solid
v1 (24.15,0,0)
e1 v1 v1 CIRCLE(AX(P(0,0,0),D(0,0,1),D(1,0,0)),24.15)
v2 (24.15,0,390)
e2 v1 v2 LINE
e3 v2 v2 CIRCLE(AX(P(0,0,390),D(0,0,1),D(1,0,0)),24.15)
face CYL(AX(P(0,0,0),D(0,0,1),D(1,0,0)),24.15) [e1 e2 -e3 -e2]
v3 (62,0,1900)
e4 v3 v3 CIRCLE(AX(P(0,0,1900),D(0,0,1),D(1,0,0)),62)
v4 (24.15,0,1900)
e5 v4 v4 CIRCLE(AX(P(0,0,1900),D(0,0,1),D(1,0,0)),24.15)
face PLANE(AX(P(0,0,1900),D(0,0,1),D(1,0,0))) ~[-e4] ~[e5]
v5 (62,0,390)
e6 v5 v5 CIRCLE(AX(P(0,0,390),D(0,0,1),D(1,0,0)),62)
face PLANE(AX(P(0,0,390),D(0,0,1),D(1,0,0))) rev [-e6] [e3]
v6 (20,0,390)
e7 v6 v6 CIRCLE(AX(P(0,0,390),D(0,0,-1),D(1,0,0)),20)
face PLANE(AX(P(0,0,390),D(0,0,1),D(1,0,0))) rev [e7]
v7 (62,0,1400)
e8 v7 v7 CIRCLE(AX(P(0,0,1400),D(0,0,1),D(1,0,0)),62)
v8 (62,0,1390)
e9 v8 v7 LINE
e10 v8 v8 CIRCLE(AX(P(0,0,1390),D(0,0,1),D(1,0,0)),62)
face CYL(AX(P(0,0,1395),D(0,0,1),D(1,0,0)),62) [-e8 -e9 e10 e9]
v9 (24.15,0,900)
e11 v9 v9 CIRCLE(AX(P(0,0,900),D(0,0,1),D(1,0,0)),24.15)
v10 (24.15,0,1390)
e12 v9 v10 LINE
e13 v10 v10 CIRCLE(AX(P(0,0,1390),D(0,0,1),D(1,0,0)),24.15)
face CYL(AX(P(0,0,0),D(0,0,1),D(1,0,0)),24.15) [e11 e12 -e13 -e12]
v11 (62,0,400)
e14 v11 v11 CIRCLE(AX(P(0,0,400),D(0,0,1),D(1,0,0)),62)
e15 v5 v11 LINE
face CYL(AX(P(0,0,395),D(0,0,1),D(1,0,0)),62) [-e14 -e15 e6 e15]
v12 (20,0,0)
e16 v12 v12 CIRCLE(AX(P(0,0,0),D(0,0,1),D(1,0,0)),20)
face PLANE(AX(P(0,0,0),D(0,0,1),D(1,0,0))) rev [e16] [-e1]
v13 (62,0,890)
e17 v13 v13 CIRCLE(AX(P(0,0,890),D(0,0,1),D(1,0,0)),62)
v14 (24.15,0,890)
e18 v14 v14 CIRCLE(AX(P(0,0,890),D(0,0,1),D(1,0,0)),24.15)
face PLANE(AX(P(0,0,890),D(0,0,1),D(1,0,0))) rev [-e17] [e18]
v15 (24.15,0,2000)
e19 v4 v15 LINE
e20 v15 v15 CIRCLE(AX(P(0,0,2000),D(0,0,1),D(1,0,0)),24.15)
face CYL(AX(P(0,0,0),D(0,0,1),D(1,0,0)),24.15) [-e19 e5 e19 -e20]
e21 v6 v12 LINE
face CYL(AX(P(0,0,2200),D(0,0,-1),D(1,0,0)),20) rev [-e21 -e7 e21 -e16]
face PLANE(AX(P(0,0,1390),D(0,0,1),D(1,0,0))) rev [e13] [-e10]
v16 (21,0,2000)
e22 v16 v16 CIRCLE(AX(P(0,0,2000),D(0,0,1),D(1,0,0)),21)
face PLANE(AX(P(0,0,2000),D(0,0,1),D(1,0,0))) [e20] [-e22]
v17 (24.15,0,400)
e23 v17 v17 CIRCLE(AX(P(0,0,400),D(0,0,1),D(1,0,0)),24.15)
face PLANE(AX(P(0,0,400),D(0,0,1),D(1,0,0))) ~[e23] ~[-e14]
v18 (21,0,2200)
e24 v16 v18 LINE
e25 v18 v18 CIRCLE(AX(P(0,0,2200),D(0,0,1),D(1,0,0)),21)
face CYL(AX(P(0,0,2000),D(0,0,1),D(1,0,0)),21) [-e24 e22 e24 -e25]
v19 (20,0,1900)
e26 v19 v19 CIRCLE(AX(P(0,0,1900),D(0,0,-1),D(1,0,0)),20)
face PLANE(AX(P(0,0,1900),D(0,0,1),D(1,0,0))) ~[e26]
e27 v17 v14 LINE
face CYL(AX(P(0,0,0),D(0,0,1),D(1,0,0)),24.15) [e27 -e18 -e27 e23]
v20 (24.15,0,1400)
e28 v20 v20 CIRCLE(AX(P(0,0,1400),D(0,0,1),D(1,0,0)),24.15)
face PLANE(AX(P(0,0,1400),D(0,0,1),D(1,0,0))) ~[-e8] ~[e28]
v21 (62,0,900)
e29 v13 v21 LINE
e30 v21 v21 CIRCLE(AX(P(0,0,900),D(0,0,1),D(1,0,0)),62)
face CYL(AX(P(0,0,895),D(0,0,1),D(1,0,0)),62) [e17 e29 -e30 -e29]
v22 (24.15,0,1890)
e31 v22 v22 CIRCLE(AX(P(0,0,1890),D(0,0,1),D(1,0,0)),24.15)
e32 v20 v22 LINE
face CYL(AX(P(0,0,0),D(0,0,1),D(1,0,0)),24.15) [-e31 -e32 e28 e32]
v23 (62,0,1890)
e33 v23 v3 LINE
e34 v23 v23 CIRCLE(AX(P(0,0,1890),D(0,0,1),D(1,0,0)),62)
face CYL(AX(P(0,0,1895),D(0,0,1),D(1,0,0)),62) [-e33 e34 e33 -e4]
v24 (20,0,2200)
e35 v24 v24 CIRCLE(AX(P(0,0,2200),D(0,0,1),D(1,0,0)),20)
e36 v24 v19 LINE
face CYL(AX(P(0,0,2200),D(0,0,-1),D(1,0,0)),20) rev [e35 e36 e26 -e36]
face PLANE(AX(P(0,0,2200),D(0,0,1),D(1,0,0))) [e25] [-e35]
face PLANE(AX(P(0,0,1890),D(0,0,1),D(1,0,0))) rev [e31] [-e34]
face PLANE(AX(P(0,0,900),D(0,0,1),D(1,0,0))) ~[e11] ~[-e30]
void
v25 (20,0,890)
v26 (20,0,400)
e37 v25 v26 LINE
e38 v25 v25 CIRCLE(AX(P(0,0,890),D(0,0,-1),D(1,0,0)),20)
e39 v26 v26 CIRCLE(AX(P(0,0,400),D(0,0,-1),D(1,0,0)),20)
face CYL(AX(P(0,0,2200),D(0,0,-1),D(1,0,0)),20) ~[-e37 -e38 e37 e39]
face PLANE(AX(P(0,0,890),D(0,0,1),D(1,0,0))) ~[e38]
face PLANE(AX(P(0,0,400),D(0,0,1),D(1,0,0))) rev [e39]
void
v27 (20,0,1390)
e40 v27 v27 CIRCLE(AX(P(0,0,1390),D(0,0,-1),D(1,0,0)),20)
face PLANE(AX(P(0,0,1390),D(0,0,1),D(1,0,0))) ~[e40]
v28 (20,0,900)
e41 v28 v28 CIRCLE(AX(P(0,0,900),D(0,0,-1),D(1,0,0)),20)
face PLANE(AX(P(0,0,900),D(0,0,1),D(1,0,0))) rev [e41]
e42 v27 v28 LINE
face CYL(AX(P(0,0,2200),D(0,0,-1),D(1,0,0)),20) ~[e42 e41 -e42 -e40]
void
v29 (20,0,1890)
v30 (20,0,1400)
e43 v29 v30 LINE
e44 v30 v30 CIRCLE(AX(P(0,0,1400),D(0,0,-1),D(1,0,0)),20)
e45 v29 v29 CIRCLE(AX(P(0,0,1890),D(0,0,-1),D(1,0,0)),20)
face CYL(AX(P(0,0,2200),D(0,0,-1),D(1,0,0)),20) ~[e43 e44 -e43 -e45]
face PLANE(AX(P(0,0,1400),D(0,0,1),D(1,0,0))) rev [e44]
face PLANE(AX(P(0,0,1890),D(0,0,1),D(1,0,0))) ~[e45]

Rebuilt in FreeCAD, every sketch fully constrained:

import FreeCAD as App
import Part
import Sketcher

doc = App.newDocument("Part")
params = doc.addObject("Spreadsheet::Sheet", "Params")
for row, (alias, value) in enumerate([
    ("sketch1_width", "1 mm"),
    ("sketch1_height", "2000 mm"),
    ("sketch1_height2", "200 mm"),
    ("sketch1_width2", "4.15 mm"),
    ("revolution_angle", "360 deg"),
    ("sketch2_width", "62 mm"),
    ("sketch2_height", "10 mm"),
    ("revolution2_angle", "360 deg"),
], start=1):
    params.set(f"A{row}", alias)
    params.set(f"B{row}", "=" + value)
    params.setAlias(f"B{row}", alias)

body = doc.addObject("PartDesign::Body", "Body")

# Sketch on XZ plane
sketch1 = body.newObject("Sketcher::SketchObject", "Sketch")
sketch1.AttachmentSupport = (doc.getObject("XZ_Plane"), [""])
sketch1.MapMode = "FlatFace"
sketch1.addGeometry(Part.LineSegment(App.Vector(20, 0, 0), App.Vector(24.1, 0, 0)), False)
sketch1.addGeometry(Part.LineSegment(App.Vector(24.1, 0, 0), App.Vector(24.1, 2000, 0)), False)
sketch1.addGeometry(Part.LineSegment(App.Vector(24.1, 2000, 0), App.Vector(21, 2000, 0)), False)
sketch1.addGeometry(Part.LineSegment(App.Vector(21, 2000, 0), App.Vector(21, 2200, 0)), False)
sketch1.addGeometry(Part.LineSegment(App.Vector(21, 2200, 0), App.Vector(20, 2200, 0)), False)
sketch1.addGeometry(Part.LineSegment(App.Vector(20, 2200, 0), App.Vector(20, 0, 0)), False)
sketch1.addConstraint(Sketcher.Constraint("Coincident", 0, 2, 1, 1))
sketch1.addConstraint(Sketcher.Constraint("Coincident", 1, 2, 2, 1))
sketch1.addConstraint(Sketcher.Constraint("Coincident", 2, 2, 3, 1))
sketch1.addConstraint(Sketcher.Constraint("Coincident", 3, 2, 4, 1))
sketch1.addConstraint(Sketcher.Constraint("Coincident", 4, 2, 5, 1))
sketch1.addConstraint(Sketcher.Constraint("Coincident", 5, 2, 0, 1))
sketch1.addConstraint(Sketcher.Constraint("Horizontal", 0))
sketch1.addConstraint(Sketcher.Constraint("Vertical", 1))
sketch1.addConstraint(Sketcher.Constraint("Horizontal", 2))
sketch1.addConstraint(Sketcher.Constraint("Vertical", 3))
sketch1.addConstraint(Sketcher.Constraint("Horizontal", 4))
sketch1.addConstraint(Sketcher.Constraint("Vertical", 5))
sketch1.addConstraint(Sketcher.Constraint("PointOnObject", 0, 2, -1))
sketch1.addConstraint(Sketcher.Constraint("DistanceX", 4, 2, 4, 1, 1.0))
sketch1.addConstraint(Sketcher.Constraint("DistanceY", 1, 1, 1, 2, 2000.0))
sketch1.addConstraint(Sketcher.Constraint("DistanceY", 3, 1, 3, 2, 200.0))
sketch1.addConstraint(Sketcher.Constraint("DistanceX", -1, 1, 2, 2, 21.0))
sketch1.addConstraint(Sketcher.Constraint("DistanceX", 0, 1, 0, 2, 4.15))
sketch1.setExpression("Constraints[13]", "Params.sketch1_width")
sketch1.setExpression("Constraints[14]", "Params.sketch1_height")
sketch1.setExpression("Constraints[15]", "Params.sketch1_height2")
sketch1.setExpression("Constraints[17]", "Params.sketch1_width2")
revolution = body.newObject("PartDesign::Revolution", "Revolution")
revolution.Profile = sketch1
revolution.ReferenceAxis = (sketch1, ["V_Axis"])
revolution.setExpression("Angle", "Params.revolution_angle")

# Sketch on XZ plane
sketch2 = body.newObject("Sketcher::SketchObject", "Sketch001")
sketch2.AttachmentSupport = (doc.getObject("XZ_Plane"), [""])
sketch2.MapMode = "FlatFace"
sketch2.addGeometry(Part.LineSegment(App.Vector(0, 400, 0), App.Vector(0, 390, 0)), False)
sketch2.addGeometry(Part.LineSegment(App.Vector(0, 390, 0), App.Vector(62, 390, 0)), False)
sketch2.addGeometry(Part.LineSegment(App.Vector(62, 390, 0), App.Vector(62, 400, 0)), False)
sketch2.addGeometry(Part.LineSegment(App.Vector(62, 400, 0), App.Vector(0, 400, 0)), False)
sketch2.addGeometry(Part.LineSegment(App.Vector(0, 900, 0), App.Vector(0, 890, 0)), False)
sketch2.addGeometry(Part.LineSegment(App.Vector(0, 890, 0), App.Vector(62, 890, 0)), False)
sketch2.addGeometry(Part.LineSegment(App.Vector(62, 890, 0), App.Vector(62, 900, 0)), False)
sketch2.addGeometry(Part.LineSegment(App.Vector(62, 900, 0), App.Vector(0, 900, 0)), False)
sketch2.addGeometry(Part.LineSegment(App.Vector(0, 1400, 0), App.Vector(0, 1390, 0)), False)
sketch2.addGeometry(Part.LineSegment(App.Vector(0, 1390, 0), App.Vector(62, 1390, 0)), False)
sketch2.addGeometry(Part.LineSegment(App.Vector(62, 1390, 0), App.Vector(62, 1400, 0)), False)
sketch2.addGeometry(Part.LineSegment(App.Vector(62, 1400, 0), App.Vector(0, 1400, 0)), False)
sketch2.addGeometry(Part.LineSegment(App.Vector(0, 1900, 0), App.Vector(0, 1890, 0)), False)
sketch2.addGeometry(Part.LineSegment(App.Vector(0, 1890, 0), App.Vector(62, 1890, 0)), False)
sketch2.addGeometry(Part.LineSegment(App.Vector(62, 1890, 0), App.Vector(62, 1900, 0)), False)
sketch2.addGeometry(Part.LineSegment(App.Vector(62, 1900, 0), App.Vector(0, 1900, 0)), False)
sketch2.addConstraint(Sketcher.Constraint("Coincident", 0, 2, 1, 1))
sketch2.addConstraint(Sketcher.Constraint("Coincident", 1, 2, 2, 1))
sketch2.addConstraint(Sketcher.Constraint("Coincident", 2, 2, 3, 1))
sketch2.addConstraint(Sketcher.Constraint("Coincident", 3, 2, 0, 1))
sketch2.addConstraint(Sketcher.Constraint("Coincident", 4, 2, 5, 1))
sketch2.addConstraint(Sketcher.Constraint("Coincident", 5, 2, 6, 1))
sketch2.addConstraint(Sketcher.Constraint("Coincident", 6, 2, 7, 1))
sketch2.addConstraint(Sketcher.Constraint("Coincident", 7, 2, 4, 1))
sketch2.addConstraint(Sketcher.Constraint("Coincident", 8, 2, 9, 1))
sketch2.addConstraint(Sketcher.Constraint("Coincident", 9, 2, 10, 1))
sketch2.addConstraint(Sketcher.Constraint("Coincident", 10, 2, 11, 1))
sketch2.addConstraint(Sketcher.Constraint("Coincident", 11, 2, 8, 1))
sketch2.addConstraint(Sketcher.Constraint("Coincident", 12, 2, 13, 1))
sketch2.addConstraint(Sketcher.Constraint("Coincident", 13, 2, 14, 1))
sketch2.addConstraint(Sketcher.Constraint("Coincident", 14, 2, 15, 1))
sketch2.addConstraint(Sketcher.Constraint("Coincident", 15, 2, 12, 1))
sketch2.addConstraint(Sketcher.Constraint("Vertical", 0))
sketch2.addConstraint(Sketcher.Constraint("Horizontal", 1))
sketch2.addConstraint(Sketcher.Constraint("Vertical", 2))
sketch2.addConstraint(Sketcher.Constraint("Horizontal", 3))
sketch2.addConstraint(Sketcher.Constraint("Vertical", 4))
sketch2.addConstraint(Sketcher.Constraint("Horizontal", 5))
sketch2.addConstraint(Sketcher.Constraint("Vertical", 6))
sketch2.addConstraint(Sketcher.Constraint("Horizontal", 7))
sketch2.addConstraint(Sketcher.Constraint("Vertical", 8))
sketch2.addConstraint(Sketcher.Constraint("Horizontal", 9))
sketch2.addConstraint(Sketcher.Constraint("Vertical", 10))
sketch2.addConstraint(Sketcher.Constraint("Horizontal", 11))
sketch2.addConstraint(Sketcher.Constraint("Vertical", 12))
sketch2.addConstraint(Sketcher.Constraint("Horizontal", 13))
sketch2.addConstraint(Sketcher.Constraint("Vertical", 14))
sketch2.addConstraint(Sketcher.Constraint("Horizontal", 15))
sketch2.addConstraint(Sketcher.Constraint("PointOnObject", 0, 2, -2))
sketch2.addConstraint(Sketcher.Constraint("PointOnObject", 4, 2, -2))
sketch2.addConstraint(Sketcher.Constraint("PointOnObject", 8, 2, -2))
sketch2.addConstraint(Sketcher.Constraint("PointOnObject", 12, 2, -2))
sketch2.addConstraint(Sketcher.Constraint("Vertical", 2, 2, 5, 2))
sketch2.addConstraint(Sketcher.Constraint("Vertical", 6, 2, 9, 2))
sketch2.addConstraint(Sketcher.Constraint("Vertical", 10, 2, 13, 2))
sketch2.addConstraint(Sketcher.Constraint("Equal", 2, 4))
sketch2.addConstraint(Sketcher.Constraint("Equal", 6, 8))
sketch2.addConstraint(Sketcher.Constraint("Equal", 10, 12))
sketch2.addConstraint(Sketcher.Constraint("DistanceX", 1, 1, 1, 2, 62.0))
sketch2.addConstraint(Sketcher.Constraint("DistanceY", 0, 2, 0, 1, 10.0))
sketch2.addConstraint(Sketcher.Constraint("DistanceY", -1, 1, 0, 2, 390.0))
sketch2.addConstraint(Sketcher.Constraint("DistanceY", -1, 1, 4, 2, 890.0))
sketch2.addConstraint(Sketcher.Constraint("DistanceY", -1, 1, 8, 2, 1390.0))
sketch2.addConstraint(Sketcher.Constraint("DistanceY", -1, 1, 12, 2, 1890.0))
sketch2.setExpression("Constraints[42]", "Params.sketch2_width")
sketch2.setExpression("Constraints[43]", "Params.sketch2_height")
revolution2 = body.newObject("PartDesign::Revolution", "Revolution001")
revolution2.Profile = sketch2
revolution2.ReferenceAxis = (sketch2, ["V_Axis"])
revolution2.setExpression("Angle", "Params.revolution2_angle")

doc.recompute()
